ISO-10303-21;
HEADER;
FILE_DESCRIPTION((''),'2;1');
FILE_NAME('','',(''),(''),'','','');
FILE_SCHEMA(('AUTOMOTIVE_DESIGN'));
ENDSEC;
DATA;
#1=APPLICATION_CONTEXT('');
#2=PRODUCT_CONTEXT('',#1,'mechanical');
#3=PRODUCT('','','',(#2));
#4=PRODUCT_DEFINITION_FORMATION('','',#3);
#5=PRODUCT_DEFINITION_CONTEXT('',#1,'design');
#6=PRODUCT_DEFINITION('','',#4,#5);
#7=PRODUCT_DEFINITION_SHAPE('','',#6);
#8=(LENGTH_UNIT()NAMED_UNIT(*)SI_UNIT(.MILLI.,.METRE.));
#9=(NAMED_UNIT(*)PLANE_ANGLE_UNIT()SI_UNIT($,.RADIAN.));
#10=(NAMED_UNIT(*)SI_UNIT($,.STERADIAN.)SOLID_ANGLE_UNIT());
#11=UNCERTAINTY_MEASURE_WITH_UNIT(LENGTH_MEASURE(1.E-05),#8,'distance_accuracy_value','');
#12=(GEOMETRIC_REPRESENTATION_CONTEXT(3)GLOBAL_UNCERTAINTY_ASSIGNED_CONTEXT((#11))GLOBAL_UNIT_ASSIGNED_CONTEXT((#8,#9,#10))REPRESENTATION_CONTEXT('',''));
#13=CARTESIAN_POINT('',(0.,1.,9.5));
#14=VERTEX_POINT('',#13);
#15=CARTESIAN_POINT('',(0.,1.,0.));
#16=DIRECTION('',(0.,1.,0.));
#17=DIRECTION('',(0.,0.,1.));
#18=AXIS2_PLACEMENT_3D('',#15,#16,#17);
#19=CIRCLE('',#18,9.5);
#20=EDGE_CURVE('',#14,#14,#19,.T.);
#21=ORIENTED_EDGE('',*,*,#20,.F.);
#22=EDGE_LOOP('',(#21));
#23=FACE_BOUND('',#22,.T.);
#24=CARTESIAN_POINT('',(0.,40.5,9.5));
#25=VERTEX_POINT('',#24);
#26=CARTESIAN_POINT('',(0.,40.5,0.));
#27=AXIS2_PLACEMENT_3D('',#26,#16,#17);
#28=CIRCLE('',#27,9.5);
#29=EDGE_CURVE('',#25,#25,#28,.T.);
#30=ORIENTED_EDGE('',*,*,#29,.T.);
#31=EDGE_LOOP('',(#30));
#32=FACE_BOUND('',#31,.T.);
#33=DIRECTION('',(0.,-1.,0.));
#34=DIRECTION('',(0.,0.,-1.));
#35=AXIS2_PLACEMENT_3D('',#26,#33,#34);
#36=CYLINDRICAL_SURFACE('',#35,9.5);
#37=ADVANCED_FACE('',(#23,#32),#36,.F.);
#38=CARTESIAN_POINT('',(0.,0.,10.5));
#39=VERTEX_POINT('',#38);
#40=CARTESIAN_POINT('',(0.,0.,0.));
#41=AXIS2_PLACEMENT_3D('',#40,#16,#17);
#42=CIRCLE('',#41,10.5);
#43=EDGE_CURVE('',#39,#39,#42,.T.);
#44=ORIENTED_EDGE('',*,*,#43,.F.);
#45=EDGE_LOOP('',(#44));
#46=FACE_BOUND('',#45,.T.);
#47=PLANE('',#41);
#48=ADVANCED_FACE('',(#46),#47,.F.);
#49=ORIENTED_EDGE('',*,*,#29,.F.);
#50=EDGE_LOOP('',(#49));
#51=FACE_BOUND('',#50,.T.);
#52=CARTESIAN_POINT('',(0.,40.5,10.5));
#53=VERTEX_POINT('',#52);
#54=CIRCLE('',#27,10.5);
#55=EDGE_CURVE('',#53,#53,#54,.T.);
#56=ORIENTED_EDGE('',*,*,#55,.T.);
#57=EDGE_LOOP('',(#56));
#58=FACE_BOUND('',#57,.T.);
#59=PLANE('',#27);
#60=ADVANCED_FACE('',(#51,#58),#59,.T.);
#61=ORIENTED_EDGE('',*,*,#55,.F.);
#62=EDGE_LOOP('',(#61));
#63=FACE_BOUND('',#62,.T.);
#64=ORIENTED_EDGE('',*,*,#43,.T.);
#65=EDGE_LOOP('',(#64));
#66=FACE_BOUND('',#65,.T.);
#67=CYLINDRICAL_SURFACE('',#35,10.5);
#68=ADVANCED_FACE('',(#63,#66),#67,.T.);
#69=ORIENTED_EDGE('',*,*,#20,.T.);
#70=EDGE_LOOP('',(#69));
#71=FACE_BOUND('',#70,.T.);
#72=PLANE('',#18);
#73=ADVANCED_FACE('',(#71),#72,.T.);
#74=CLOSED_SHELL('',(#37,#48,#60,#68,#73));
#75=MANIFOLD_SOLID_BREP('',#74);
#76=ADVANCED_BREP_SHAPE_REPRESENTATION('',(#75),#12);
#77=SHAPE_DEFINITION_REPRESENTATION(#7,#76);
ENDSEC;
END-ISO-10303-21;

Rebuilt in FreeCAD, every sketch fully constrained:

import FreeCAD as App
import Part
import Sketcher
from FreeCAD import Vector
Q = App.Units.Quantity


def faces_at(feature, points):
    """Names of the faces that lie closest to the given points."""
    faces = feature.Shape.Faces
    near = lambda p: min(range(len(faces)), key=lambda i: faces[i].distToShape(Part.Vertex(*p))[0])
    return sorted({f"Face{near(p) + 1}" for p in points})

doc = App.newDocument("Part")
body = doc.addObject("PartDesign::Body", "Body")

# Sketch on XZ plane
sketch1 = body.newObject("Sketcher::SketchObject", "Sketch")
sketch1.AttachmentSupport = (doc.getObject("XZ_Plane"), [""])
sketch1.MapMode = "FlatFace"
sketch1.addGeometry(Part.Circle(Vector(0, 0, 0), Vector(0, 0, 1), 10), False)
sketch1.addConstraint(Sketcher.Constraint("Coincident", 0, 3, -1, 1))
sketch1.addConstraint(Sketcher.Constraint("Diameter", 0, Q("21 mm")))
pad1 = body.newObject("PartDesign::Pad", "Pad")
pad1.Profile = sketch1
pad1.Length = 40.5
pad1.Reversed = True
doc.recompute()

thickness = body.newObject("PartDesign::Thickness", "Thickness")
thickness.Base = (pad1, faces_at(pad1, [(0, 40.5, 0)]))
thickness.Value = 1
thickness.Reversed = True
thickness.Join = "Intersection"

doc.recompute()
